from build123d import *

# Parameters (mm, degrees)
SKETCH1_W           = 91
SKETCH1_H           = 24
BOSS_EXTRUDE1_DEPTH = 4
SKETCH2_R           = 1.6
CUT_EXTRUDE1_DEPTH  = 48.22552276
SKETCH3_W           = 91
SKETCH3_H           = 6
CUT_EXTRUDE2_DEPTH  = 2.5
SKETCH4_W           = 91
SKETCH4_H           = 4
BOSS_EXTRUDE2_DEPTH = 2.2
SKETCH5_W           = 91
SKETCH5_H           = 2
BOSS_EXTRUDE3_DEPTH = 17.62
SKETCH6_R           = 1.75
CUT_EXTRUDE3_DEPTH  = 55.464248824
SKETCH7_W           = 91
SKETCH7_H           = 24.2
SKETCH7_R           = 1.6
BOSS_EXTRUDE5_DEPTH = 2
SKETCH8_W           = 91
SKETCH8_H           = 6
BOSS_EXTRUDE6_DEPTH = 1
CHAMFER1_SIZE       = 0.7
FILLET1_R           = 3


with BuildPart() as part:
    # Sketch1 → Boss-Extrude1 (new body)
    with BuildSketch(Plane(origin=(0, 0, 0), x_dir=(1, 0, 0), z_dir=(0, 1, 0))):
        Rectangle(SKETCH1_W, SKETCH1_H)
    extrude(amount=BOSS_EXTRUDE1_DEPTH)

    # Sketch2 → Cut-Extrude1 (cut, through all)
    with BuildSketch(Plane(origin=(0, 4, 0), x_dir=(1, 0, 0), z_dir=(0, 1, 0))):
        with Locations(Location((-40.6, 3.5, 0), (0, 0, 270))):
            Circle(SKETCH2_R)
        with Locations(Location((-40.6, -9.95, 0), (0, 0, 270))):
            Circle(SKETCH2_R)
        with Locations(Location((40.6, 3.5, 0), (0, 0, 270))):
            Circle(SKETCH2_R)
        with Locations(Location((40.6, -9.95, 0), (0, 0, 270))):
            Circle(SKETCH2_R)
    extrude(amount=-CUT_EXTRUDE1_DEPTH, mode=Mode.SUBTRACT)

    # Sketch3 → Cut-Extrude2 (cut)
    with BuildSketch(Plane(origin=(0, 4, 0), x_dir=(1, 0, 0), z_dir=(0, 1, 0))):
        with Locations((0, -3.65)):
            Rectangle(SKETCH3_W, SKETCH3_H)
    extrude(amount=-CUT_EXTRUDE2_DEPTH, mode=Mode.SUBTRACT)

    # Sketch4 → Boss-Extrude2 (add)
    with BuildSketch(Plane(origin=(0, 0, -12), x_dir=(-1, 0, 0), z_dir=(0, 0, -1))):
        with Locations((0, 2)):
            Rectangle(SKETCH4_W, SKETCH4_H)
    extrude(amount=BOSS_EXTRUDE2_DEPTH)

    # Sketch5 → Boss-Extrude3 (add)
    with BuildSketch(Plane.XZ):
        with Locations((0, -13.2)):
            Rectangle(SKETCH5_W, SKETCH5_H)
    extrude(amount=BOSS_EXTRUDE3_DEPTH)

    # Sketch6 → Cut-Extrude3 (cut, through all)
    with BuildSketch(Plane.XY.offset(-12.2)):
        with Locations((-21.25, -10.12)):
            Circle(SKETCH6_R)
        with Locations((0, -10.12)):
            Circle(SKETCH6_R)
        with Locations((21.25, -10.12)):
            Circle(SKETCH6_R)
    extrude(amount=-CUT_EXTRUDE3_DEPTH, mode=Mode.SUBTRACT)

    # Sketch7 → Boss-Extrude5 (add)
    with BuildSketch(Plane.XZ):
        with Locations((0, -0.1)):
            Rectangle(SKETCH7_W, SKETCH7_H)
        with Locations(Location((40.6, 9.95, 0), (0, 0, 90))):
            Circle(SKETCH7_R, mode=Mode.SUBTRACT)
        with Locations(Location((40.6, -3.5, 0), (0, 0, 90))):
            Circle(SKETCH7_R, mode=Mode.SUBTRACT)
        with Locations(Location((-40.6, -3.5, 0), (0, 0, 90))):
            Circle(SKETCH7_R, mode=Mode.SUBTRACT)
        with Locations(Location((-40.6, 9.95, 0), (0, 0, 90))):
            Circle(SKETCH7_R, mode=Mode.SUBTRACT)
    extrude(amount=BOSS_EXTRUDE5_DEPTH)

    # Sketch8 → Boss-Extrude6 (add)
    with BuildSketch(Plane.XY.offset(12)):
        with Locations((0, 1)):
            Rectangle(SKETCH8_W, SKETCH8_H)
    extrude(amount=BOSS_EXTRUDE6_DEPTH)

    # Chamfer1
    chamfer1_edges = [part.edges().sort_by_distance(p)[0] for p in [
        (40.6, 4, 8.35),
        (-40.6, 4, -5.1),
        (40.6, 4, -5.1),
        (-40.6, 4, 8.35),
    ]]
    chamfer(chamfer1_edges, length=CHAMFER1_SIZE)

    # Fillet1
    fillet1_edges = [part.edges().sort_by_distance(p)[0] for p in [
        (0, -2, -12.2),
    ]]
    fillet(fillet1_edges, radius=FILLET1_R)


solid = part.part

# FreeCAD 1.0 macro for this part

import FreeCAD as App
import Part
import Sketcher
from FreeCAD import Vector
Q = App.Units.Quantity


def edges_at(feature, points):
    """Names of the edges that pass closest to the given points."""
    edges = feature.Shape.Edges
    near = lambda p: min(range(len(edges)), key=lambda i: edges[i].distToShape(Part.Vertex(*p))[0])
    return sorted({f"Edge{near(p) + 1}" for p in points})


def add_polygon(sketch, points):
    """Adds a closed chain of lines whose ends are joined by coincident constraints."""
    first, n = sketch.GeometryCount, len(points)
    for a, b in zip(points, points[1:] + points[:1]):
        sketch.addGeometry(Part.LineSegment(App.Vector(*a, 0), App.Vector(*b, 0)), False)
    for i in range(n):
        sketch.addConstraint(Sketcher.Constraint("Coincident", first + i, 2, first + (i + 1) % n, 1))

doc = App.newDocument("Part")
params = doc.addObject("Spreadsheet::Sheet", "Params")
for row, (alias, value) in enumerate([
    ("sketch1_width", "91 mm"),
    ("sketch1_height", "24 mm"),
    ("pad1_length", "4 mm"),
    ("sketch2_diameter", "3.2 mm"),
    ("sketch3_width", "91 mm"),
    ("sketch3_height", "6 mm"),
    ("pocket2_length", "2.5 mm"),
    ("sketch4_width", "91 mm"),
    ("sketch4_height", "4 mm"),
    ("pad2_length", "2.2 mm"),
    ("sketch5_width", "91 mm"),
    ("sketch5_height", "2 mm"),
    ("pad3_length", "17.62 mm"),
    ("sketch6_diameter", "3.5 mm"),
    ("sketch7_diameter", "3.2 mm"),
    ("sketch7_width", "91 mm"),
    ("sketch7_height", "24.2 mm"),
    ("pad4_length", "2 mm"),
    ("sketch8_width", "91 mm"),
    ("sketch8_height", "6 mm"),
    ("pad5_length", "1 mm"),
    ("chamfer_size", "0.7 mm"),
    ("fillet_radius", "3 mm"),
], start=1):
    params.set(f"A{row}", alias)
    params.set(f"B{row}", "=" + value)
    params.setAlias(f"B{row}", alias)

body = doc.addObject("PartDesign::Body", "Body")

# Sketch on XZ plane
sketch1 = doc.addObject("Sketcher::SketchObject", "Sketch")
body.addObject(sketch1)
sketch1.AttachmentSupport = (doc.XZ_Plane, [""])
sketch1.MapMode = "FlatFace"
add_polygon(sketch1, [(-46, -12), (-46, 12), (46, 12), (46, -12)])  # lines 0-3
sketch1.addConstraint([
    Sketcher.Constraint("Vertical", 0),
    Sketcher.Constraint("Horizontal", 1),
    Sketcher.Constraint("Vertical", 2),
    Sketcher.Constraint("Horizontal", 3),
    Sketcher.Constraint("Symmetric", 0, 2, 2, 2, -1, 1),
    Sketcher.Constraint("DistanceX", 1, 1, 1, 2, Q("91 mm")),
    Sketcher.Constraint("DistanceY", 0, 1, 0, 2, Q("24 mm")),
])
sketch1.setExpression("Constraints[9]", "Params.sketch1_width")
sketch1.setExpression("Constraints[10]", "Params.sketch1_height")
pad1 = doc.addObject("PartDesign::Pad", "Pad")
body.addObject(pad1)
pad1.Profile = sketch1
pad1.setExpression("Length", "Params.pad1_length")
pad1.Reversed = True

# Sketch on XZ plane
sketch2 = doc.addObject("Sketcher::SketchObject", "Sketch001")
body.addObject(sketch2)
sketch2.AttachmentSupport = (doc.XZ_Plane, [""])
sketch2.MapMode = "FlatFace"
sketch2.AttachmentOffset = App.Placement(Vector(0, 0, -4), App.Rotation())
sketch2.addGeometry([
    Part.Circle(Vector(-40.6, -3.5, 0), Vector(0, 0, 1), 1.6),
    Part.Circle(Vector(-40.6, 9.9, 0), Vector(0, 0, 1), 1.6),
    Part.Circle(Vector(40.6, -3.5, 0), Vector(0, 0, 1), 1.6),
    Part.Circle(Vector(40.6, 9.9, 0), Vector(0, 0, 1), 1.6),
], False)
sketch2.addConstraint([
    Sketcher.Constraint("Equal", 0, 1),
    Sketcher.Constraint("Equal", 1, 2),
    Sketcher.Constraint("Equal", 2, 3),
    Sketcher.Constraint("Symmetric", 0, 3, 2, 3, -2),
    Sketcher.Constraint("Symmetric", 1, 3, 3, 3, -2),
    Sketcher.Constraint("Vertical", 0, 3, 1, 3),
    Sketcher.Constraint("Diameter", 0, Q("3.2 mm")),
    Sketcher.Constraint("DistanceX", 0, 3, -1, 1, Q("40.6 mm")),
    Sketcher.Constraint("DistanceY", 0, 3, -1, 1, Q("3.5 mm")),
    Sketcher.Constraint("DistanceY", -1, 1, 1, 3, Q("9.95 mm")),
])
sketch2.setExpression("Constraints[6]", "Params.sketch2_diameter")
pocket1 = doc.addObject("PartDesign::Pocket", "Pocket")
body.addObject(pocket1)
pocket1.Profile = sketch2
pocket1.Type = "ThroughAll"
pocket1.Reversed = True

# Sketch on XZ plane
sketch3 = doc.addObject("Sketcher::SketchObject", "Sketch002")
body.addObject(sketch3)
sketch3.AttachmentSupport = (doc.XZ_Plane, [""])
sketch3.MapMode = "FlatFace"
sketch3.AttachmentOffset = App.Placement(Vector(0, 0, -4), App.Rotation())
add_polygon(sketch3, [(-46, 1), (-46, 7), (46, 7), (46, 1)])  # lines 0-3
sketch3.addConstraint([
    Sketcher.Constraint("Vertical", 0),
    Sketcher.Constraint("Horizontal", 1),
    Sketcher.Constraint("Vertical", 2),
    Sketcher.Constraint("Horizontal", 3),
    Sketcher.Constraint("DistanceX", 1, 1, 1, 2, Q("91 mm")),
    Sketcher.Constraint("DistanceY", 0, 1, 0, 2, Q("6 mm")),
    Sketcher.Constraint("DistanceX", 0, 2, -1, 1, Q("45.5 mm")),
    Sketcher.Constraint("DistanceY", -1, 1, 0, 2, Q("6.65 mm")),
])
sketch3.setExpression("Constraints[8]", "Params.sketch3_width")
sketch3.setExpression("Constraints[9]", "Params.sketch3_height")
pocket2 = doc.addObject("PartDesign::Pocket", "Pocket001")
body.addObject(pocket2)
pocket2.Profile = sketch3
pocket2.setExpression("Length", "Params.pocket2_length")
pocket2.Reversed = True

# Sketch on XY plane
sketch4 = doc.addObject("Sketcher::SketchObject", "Sketch003")
body.addObject(sketch4)
sketch4.AttachmentSupport = (doc.XY_Plane, [""])
sketch4.MapMode = "FlatFace"
sketch4.AttachmentOffset = App.Placement(Vector(0, 0, -12), App.Rotation())
add_polygon(sketch4, [(45.5, 4), (45.5, 0), (-45.5, 0), (-45.5, 4)])  # lines 0-3
sketch4.addConstraint([
    Sketcher.Constraint("Vertical", 0),
    Sketcher.Constraint("Horizontal", 1),
    Sketcher.Constraint("Vertical", 2),
    Sketcher.Constraint("Horizontal", 3),
    Sketcher.Constraint("Symmetric", 0, 2, 1, 2, -1, 1),
    Sketcher.Constraint("DistanceX", 1, 2, 1, 1, Q("91 mm")),
    Sketcher.Constraint("DistanceY", 0, 2, 0, 1, Q("4 mm")),
])
sketch4.setExpression("Constraints[9]", "Params.sketch4_width")
sketch4.setExpression("Constraints[10]", "Params.sketch4_height")
pad2 = doc.addObject("PartDesign::Pad", "Pad001")
body.addObject(pad2)
pad2.Profile = sketch4
pad2.setExpression("Length", "Params.pad2_length")
pad2.Reversed = True

# Sketch on XZ plane
sketch5 = doc.addObject("Sketcher::SketchObject", "Sketch004")
body.addObject(sketch5)
sketch5.AttachmentSupport = (doc.XZ_Plane, [""])
sketch5.MapMode = "FlatFace"
add_polygon(sketch5, [(-45.5, -12.2), (-45.5, -14.2), (45.5, -14.2), (45.5, -12.2)])  # lines 0-3
sketch5.addConstraint([
    Sketcher.Constraint("Vertical", 0),
    Sketcher.Constraint("Horizontal", 1),
    Sketcher.Constraint("Vertical", 2),
    Sketcher.Constraint("Horizontal", 3),
    Sketcher.Constraint("DistanceX", 1, 1, 1, 2, Q("91 mm")),
    Sketcher.Constraint("DistanceY", 0, 2, 0, 1, Q("2 mm")),
    Sketcher.Constraint("DistanceX", 0, 2, -1, 1, Q("45.5 mm")),
    Sketcher.Constraint("DistanceY", 0, 2, -1, 1, Q("14.2 mm")),
])
sketch5.setExpression("Constraints[8]", "Params.sketch5_width")
sketch5.setExpression("Constraints[9]", "Params.sketch5_height")
pad3 = doc.addObject("PartDesign::Pad", "Pad002")
body.addObject(pad3)
pad3.Profile = sketch5
pad3.setExpression("Length", "Params.pad3_length")

# Sketch on XY plane
sketch6 = doc.addObject("Sketcher::SketchObject", "Sketch005")
body.addObject(sketch6)
sketch6.AttachmentSupport = (doc.XY_Plane, [""])
sketch6.MapMode = "FlatFace"
sketch6.AttachmentOffset = App.Placement(Vector(0, 0, -12.2), App.Rotation())
sketch6.addGeometry([
    Part.Circle(Vector(-21.2, -10.1, 0), Vector(0, 0, 1), 1.8),
    Part.Circle(Vector(0, -10.1, 0), Vector(0, 0, 1), 1.8),
    Part.Circle(Vector(21.2, -10.1, 0), Vector(0, 0, 1), 1.8),
], False)
sketch6.addConstraint([
    Sketcher.Constraint("Equal", 0, 1),
    Sketcher.Constraint("Equal", 1, 2),
    Sketcher.Constraint("Symmetric", 0, 3, 2, 3, -2),
    Sketcher.Constraint("PointOnObject", 1, 3, -2),
    Sketcher.Constraint("Horizontal", 0, 3, 1, 3),
    Sketcher.Constraint("Diameter", 0, Q("3.5 mm")),
    Sketcher.Constraint("DistanceX", 0, 3, 2, 3, Q("42.5 mm")),
    Sketcher.Constraint("DistanceY", 0, 3, -1, 1, Q("10.12 mm")),
])
sketch6.setExpression("Constraints[5]", "Params.sketch6_diameter")
pocket3 = doc.addObject("PartDesign::Pocket", "Pocket002")
body.addObject(pocket3)
pocket3.Profile = sketch6
pocket3.Type = "ThroughAll"

# Sketch on XZ plane
sketch7 = doc.addObject("Sketcher::SketchObject", "Sketch006")
body.addObject(sketch7)
sketch7.AttachmentSupport = (doc.XZ_Plane, [""])
sketch7.MapMode = "FlatFace"
add_polygon(sketch7, [(-45.5, 12), (-45.5, -12.2), (45.5, -12.2), (45.5, 12)])  # lines 0-3
sketch7.addGeometry(Part.Circle(Vector(-40.6, -3.5, 0), Vector(0, 0, 1), 1.6), False)  # 4
sketch7.addGeometry(Part.Circle(Vector(40.6, -3.5, 0), Vector(0, 0, 1), 1.6), False)  # 5
sketch7.addGeometry(Part.Circle(Vector(-40.6, 9.9, 0), Vector(0, 0, 1), 1.6), False)  # 6
sketch7.addGeometry(Part.Circle(Vector(40.6, 9.9, 0), Vector(0, 0, 1), 1.6), False)  # 7
sketch7.addConstraint([
    Sketcher.Constraint("Vertical", 0),
    Sketcher.Constraint("Horizontal", 1),
    Sketcher.Constraint("Vertical", 2),
    Sketcher.Constraint("Horizontal", 3),
    Sketcher.Constraint("Equal", 4, 5),
    Sketcher.Constraint("Equal", 5, 6),
    Sketcher.Constraint("Equal", 6, 7),
    Sketcher.Constraint("Symmetric", 4, 3, 5, 3, -2),
    Sketcher.Constraint("Symmetric", 6, 3, 7, 3, -2),
    Sketcher.Constraint("Vertical", 4, 3, 6, 3),
    Sketcher.Constraint("Diameter", 4, Q("3.2 mm")),
    Sketcher.Constraint("DistanceX", 1, 1, 1, 2, Q("91 mm")),
    Sketcher.Constraint("DistanceY", 0, 2, 0, 1, Q("24.2 mm")),
    Sketcher.Constraint("DistanceY", -1, 1, 2, 2, Q("12 mm")),
    Sketcher.Constraint("DistanceX", 4, 3, -1, 1, Q("40.6 mm")),
    Sketcher.Constraint("DistanceY", 4, 3, -1, 1, Q("3.5 mm")),
    Sketcher.Constraint("DistanceX", 0, 2, -1, 1, Q("45.5 mm")),
    Sketcher.Constraint("DistanceY", -1, 1, 6, 3, Q("9.95 mm")),
])
sketch7.setExpression("Constraints[14]", "Params.sketch7_diameter")
sketch7.setExpression("Constraints[15]", "Params.sketch7_width")
sketch7.setExpression("Constraints[16]", "Params.sketch7_height")
pad4 = doc.addObject("PartDesign::Pad", "Pad003")
body.addObject(pad4)
pad4.Profile = sketch7
pad4.setExpression("Length", "Params.pad4_length")

# Sketch on XY plane
sketch8 = doc.addObject("Sketcher::SketchObject", "Sketch007")
body.addObject(sketch8)
sketch8.AttachmentSupport = (doc.XY_Plane, [""])
sketch8.MapMode = "FlatFace"
sketch8.AttachmentOffset = App.Placement(Vector(0, 0, 12), App.Rotation())
add_polygon(sketch8, [(-46, 4), (-46, -2), (46, -2), (46, 4)])  # lines 0-3
sketch8.addConstraint([
    Sketcher.Constraint("Vertical", 0),
    Sketcher.Constraint("Horizontal", 1),
    Sketcher.Constraint("Vertical", 2),
    Sketcher.Constraint("Horizontal", 3),
    Sketcher.Constraint("DistanceX", 1, 1, 1, 2, Q("91 mm")),
    Sketcher.Constraint("DistanceY", 0, 2, 0, 1, Q("6 mm")),
    Sketcher.Constraint("DistanceY", 0, 2, -1, 1, Q("2 mm")),
    Sketcher.Constraint("DistanceX", 0, 2, -1, 1, Q("45.5 mm")),
])
sketch8.setExpression("Constraints[8]", "Params.sketch8_width")
sketch8.setExpression("Constraints[9]", "Params.sketch8_height")
pad5 = doc.addObject("PartDesign::Pad", "Pad004")
body.addObject(pad5)
pad5.Profile = sketch8
pad5.setExpression("Length", "Params.pad5_length")
doc.recompute()

chamfer = doc.addObject("PartDesign::Chamfer", "Chamfer")
body.addObject(chamfer)
chamfer.Base = (pad5, edges_at(pad5, [
    (40.6, 4, 8.35),
    (-40.6, 4, -5.1),
    (40.6, 4, -5.1),
    (-40.6, 4, 8.35),
]))
chamfer.setExpression("Size", "Params.chamfer_size")
doc.recompute()

fillet = doc.addObject("PartDesign::Fillet", "Fillet")
body.addObject(fillet)
fillet.Base = (chamfer, edges_at(chamfer, [(0, -2, -12.2)]))
fillet.setExpression("Radius", "Params.fillet_radius")

doc.recompute()
